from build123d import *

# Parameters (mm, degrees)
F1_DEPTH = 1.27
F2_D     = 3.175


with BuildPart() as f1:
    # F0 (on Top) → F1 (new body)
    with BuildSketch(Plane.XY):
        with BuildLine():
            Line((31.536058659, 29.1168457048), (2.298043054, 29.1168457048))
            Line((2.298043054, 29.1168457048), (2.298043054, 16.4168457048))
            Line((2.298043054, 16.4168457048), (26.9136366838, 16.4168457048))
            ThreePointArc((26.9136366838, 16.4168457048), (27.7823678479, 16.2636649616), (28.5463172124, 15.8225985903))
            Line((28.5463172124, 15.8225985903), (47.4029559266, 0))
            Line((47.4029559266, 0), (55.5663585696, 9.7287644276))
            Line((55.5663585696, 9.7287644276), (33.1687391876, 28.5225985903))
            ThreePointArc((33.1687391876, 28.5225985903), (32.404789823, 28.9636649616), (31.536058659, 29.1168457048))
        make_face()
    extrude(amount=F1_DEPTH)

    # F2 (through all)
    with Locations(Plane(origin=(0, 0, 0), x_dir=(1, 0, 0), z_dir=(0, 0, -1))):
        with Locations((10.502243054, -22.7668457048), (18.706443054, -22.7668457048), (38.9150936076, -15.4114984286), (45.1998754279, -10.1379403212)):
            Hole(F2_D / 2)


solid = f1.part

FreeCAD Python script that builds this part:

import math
import FreeCAD as App
import Part
import Sketcher
from FreeCAD import Vector
Q = App.Units.Quantity

doc = App.newDocument("Part")
params = doc.addObject("Spreadsheet::Sheet", "Params")
for row, (alias, value) in enumerate([
    ("sketch1_radius", "0.1 in"),
    ("sketch1_height", "0.5 in"),
    ("sketch1_length", "0.5 in"),
    ("pad1_length", "0.05 in"),
    ("sketch2_diameter", "0.125 in"),
    ("hole_diameter", "0.125 in"),
], start=1):
    params.set(f"A{row}", alias)
    params.set(f"B{row}", "=" + value)
    params.setAlias(f"B{row}", alias)

body = doc.addObject("PartDesign::Body", "Body")

# Sketch on XY plane
sketch1 = body.newObject("Sketcher::SketchObject", "Sketch")
sketch1.AttachmentSupport = (doc.getObject("XY_Plane"), [""])
sketch1.MapMode = "FlatFace"
sketch1.addGeometry([
    Part.LineSegment(Vector(31.5, 29.1, 0), Vector(2.3, 29.1, 0)),  # 0
    Part.LineSegment(Vector(2.3, 29.1, 0), Vector(2.3, 16.4, 0)),  # 1
    Part.LineSegment(Vector(2.3, 16.4, 0), Vector(26.9, 16.4, 0)),  # 2
    Part.ArcOfCircle(Part.Circle(Vector(26.9, 13.9, 0), Vector(0, 0, 1), 2.5), math.radians(50), math.radians(90)),  # 3
    Part.LineSegment(Vector(28.5, 15.8, 0), Vector(47.4, 0, 0)),  # 4
    Part.LineSegment(Vector(47.4, 0, 0), Vector(55.6, 9.7, 0)),  # 5
    Part.LineSegment(Vector(55.6, 9.7, 0), Vector(33.2, 28.5, 0)),  # 6
    Part.ArcOfCircle(Part.Circle(Vector(31.5, 26.6, 0), Vector(0, 0, 1), 2.5), math.radians(50), math.radians(90)),  # 7
], False)
sketch1.addConstraint([
    Sketcher.Constraint("Coincident", 0, 2, 1, 1),
    Sketcher.Constraint("Coincident", 1, 2, 2, 1),
    Sketcher.Constraint("Tangent", 2, 2, 3, 2),
    Sketcher.Constraint("Tangent", 3, 1, 4, 1),
    Sketcher.Constraint("Coincident", 4, 2, 5, 1),
    Sketcher.Constraint("Coincident", 5, 2, 6, 1),
    Sketcher.Constraint("Tangent", 6, 2, 7, 1),
    Sketcher.Constraint("Tangent", 7, 2, 0, 1),
    Sketcher.Constraint("Horizontal", 0),
    Sketcher.Constraint("Vertical", 1),
    Sketcher.Constraint("Horizontal", 2),
    Sketcher.Constraint("Equal", 3, 7),
    Sketcher.Constraint("PointOnObject", 4, 2, -1),
    Sketcher.Constraint("Perpendicular", 4, 5),
    Sketcher.Constraint("Perpendicular", 5, 6),
    Sketcher.Constraint("Radius", 3, Q("0.1 in")),
    Sketcher.Constraint("DistanceY", 1, 2, 1, 1, Q("0.5 in")),
    Sketcher.Constraint("Angle", 4, Q("-40 deg")),
    Sketcher.Constraint("Distance", 5, Q("0.5 in")),
    Sketcher.Constraint("DistanceY", -1, 1, 3, 1, 15.822599),
    Sketcher.Constraint("DistanceX", 0, 2, 0, 1, 29.238016),
    Sketcher.Constraint("DistanceX", -1, 1, 7, 3, 31.536059),
])
sketch1.setExpression("Constraints[15]", "Params.sketch1_radius")
sketch1.setExpression("Constraints[16]", "Params.sketch1_height")
sketch1.setExpression("Constraints[18]", "Params.sketch1_length")
pad1 = body.newObject("PartDesign::Pad", "Pad")
pad1.Profile = sketch1
pad1.setExpression("Length", "Params.pad1_length")

# Sketch on XY plane
sketch2 = body.newObject("Sketcher::SketchObject", "Sketch001")
sketch2.AttachmentSupport = (doc.getObject("XY_Plane"), [""])
sketch2.MapMode = "FlatFace"
sketch2.addGeometry([
    Part.Circle(Vector(10.5, 22.8, 0), Vector(0, 0, 1), 1.6),
    Part.Circle(Vector(18.7, 22.8, 0), Vector(0, 0, 1), 1.6),
    Part.Circle(Vector(38.9, 15.4, 0), Vector(0, 0, 1), 1.6),
    Part.Circle(Vector(45.2, 10.1, 0), Vector(0, 0, 1), 1.6),
], False)
sketch2.addConstraint([
    Sketcher.Constraint("Equal", 0, 1),
    Sketcher.Constraint("Equal", 1, 2),
    Sketcher.Constraint("Equal", 2, 3),
    Sketcher.Constraint("Horizontal", 0, 3, 1, 3),
    Sketcher.Constraint("Diameter", 0, Q("0.125 in")),
    Sketcher.Constraint("DistanceX", 0, 3, 1, 3, Q("0.323 in")),
    Sketcher.Constraint("DistanceY", -1, 1, 2, 3, 15.411498),
    Sketcher.Constraint("DistanceY", -1, 1, 3, 3, 10.13794),
    Sketcher.Constraint("DistanceX", 1, 3, 2, 3, 20.208651),
    Sketcher.Constraint("DistanceX", 2, 3, 3, 3, 6.284782),
    Sketcher.Constraint("DistanceX", -1, 1, 0, 3, 10.502243),
    Sketcher.Constraint("DistanceY", -1, 1, 0, 3, 22.766846),
])
sketch2.setExpression("Constraints[4]", "Params.sketch2_diameter")
doc.recompute()
hole = body.newObject("PartDesign::Hole", "Hole")
hole.Profile = sketch2
hole.ThreadType = "None"
hole.setExpression("Diameter", "Params.hole_diameter")
hole.DepthType = "ThroughAll"
hole.Reversed = True

doc.recompute()
